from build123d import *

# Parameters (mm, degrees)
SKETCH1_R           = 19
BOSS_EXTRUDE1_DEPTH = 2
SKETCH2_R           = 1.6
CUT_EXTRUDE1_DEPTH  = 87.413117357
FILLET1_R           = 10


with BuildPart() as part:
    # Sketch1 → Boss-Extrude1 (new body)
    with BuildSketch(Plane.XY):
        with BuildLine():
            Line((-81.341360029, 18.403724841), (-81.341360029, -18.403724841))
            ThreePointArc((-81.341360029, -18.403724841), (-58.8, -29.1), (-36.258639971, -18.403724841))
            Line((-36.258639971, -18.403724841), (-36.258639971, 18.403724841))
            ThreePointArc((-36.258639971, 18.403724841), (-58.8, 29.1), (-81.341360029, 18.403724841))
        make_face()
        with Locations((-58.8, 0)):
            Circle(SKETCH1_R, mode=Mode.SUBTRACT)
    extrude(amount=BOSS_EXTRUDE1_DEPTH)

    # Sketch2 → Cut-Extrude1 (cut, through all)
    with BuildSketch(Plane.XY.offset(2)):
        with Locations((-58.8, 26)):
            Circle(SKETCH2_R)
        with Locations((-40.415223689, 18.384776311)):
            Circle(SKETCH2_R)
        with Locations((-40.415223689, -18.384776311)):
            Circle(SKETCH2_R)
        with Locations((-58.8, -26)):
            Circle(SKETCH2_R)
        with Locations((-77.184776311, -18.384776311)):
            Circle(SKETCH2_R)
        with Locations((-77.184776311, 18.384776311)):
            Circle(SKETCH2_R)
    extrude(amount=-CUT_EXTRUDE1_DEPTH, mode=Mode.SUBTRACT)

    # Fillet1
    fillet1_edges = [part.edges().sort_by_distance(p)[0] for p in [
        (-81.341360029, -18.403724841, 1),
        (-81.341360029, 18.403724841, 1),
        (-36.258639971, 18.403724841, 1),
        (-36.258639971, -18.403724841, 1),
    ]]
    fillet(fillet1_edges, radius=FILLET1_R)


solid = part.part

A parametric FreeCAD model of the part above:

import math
import FreeCAD as App
import Part
import Sketcher


def edges_at(feature, points):
    """Names of the edges that pass closest to the given points."""
    edges = feature.Shape.Edges
    near = lambda p: min(range(len(edges)), key=lambda i: edges[i].distToShape(Part.Vertex(*p))[0])
    return sorted({f"Edge{near(p) + 1}" for p in points})

doc = App.newDocument("Part")
params = doc.addObject("Spreadsheet::Sheet", "Params")
for row, (alias, value) in enumerate([
    ("sketch1_diameter", "38 mm"),
    ("sketch1_radius", "29.1 mm"),
    ("pad1_length", "2 mm"),
    ("sketch2_diameter", "3.2 mm"),
    ("fillet_radius", "10 mm"),
], start=1):
    params.set(f"A{row}", alias)
    params.set(f"B{row}", "=" + value)
    params.setAlias(f"B{row}", alias)

body = doc.addObject("PartDesign::Body", "Body")

sketch1 = doc.addObject("Sketcher::SketchObject", "Sketch")
body.addObject(sketch1)
sketch1.AttachmentSupport = (doc.XY_Plane, [""])
sketch1.MapMode = "FlatFace"
sketch1.addGeometry(Part.LineSegment(App.Vector(-81.34136, 18.403725, 0), App.Vector(-81.34136, -18.403725, 0)), False)
sketch1.addGeometry(Part.ArcOfCircle(Part.Circle(App.Vector(-58.8, 0, 0), App.Vector(0, 0, 1), 29.1), math.radians(-140.770338), math.radians(-39.229662)), False)
sketch1.addGeometry(Part.LineSegment(App.Vector(-36.25864, -18.403725, 0), App.Vector(-36.25864, 18.403725, 0)), False)
sketch1.addGeometry(Part.ArcOfCircle(Part.Circle(App.Vector(-58.8, 0, 0), App.Vector(0, 0, 1), 29.1), math.radians(39.229662), math.radians(140.770338)), False)
sketch1.addGeometry(Part.Circle(App.Vector(-58.8, 0, 0), App.Vector(0, 0, 1), 19), False)
sketch1.addConstraint(Sketcher.Constraint("Coincident", 0, 2, 1, 1))
sketch1.addConstraint(Sketcher.Constraint("Coincident", 1, 2, 2, 1))
sketch1.addConstraint(Sketcher.Constraint("Coincident", 2, 2, 3, 1))
sketch1.addConstraint(Sketcher.Constraint("Coincident", 3, 2, 0, 1))
sketch1.addConstraint(Sketcher.Constraint("Vertical", 0))
sketch1.addConstraint(Sketcher.Constraint("Vertical", 2))
sketch1.addConstraint(Sketcher.Constraint("Coincident", 3, 3, 1, 3))
sketch1.addConstraint(Sketcher.Constraint("Coincident", 4, 3, 1, 3))
sketch1.addConstraint(Sketcher.Constraint("Equal", 1, 3))
sketch1.addConstraint(Sketcher.Constraint("PointOnObject", 1, 3, -1))
sketch1.addConstraint(Sketcher.Constraint("Horizontal", 0, 2, 1, 2))
sketch1.addConstraint(Sketcher.Constraint("Diameter", 4, 38.0))
sketch1.addConstraint(Sketcher.Constraint("Radius", 1, 29.1))
sketch1.addConstraint(Sketcher.Constraint("DistanceX", 1, 3, -1, 1, 58.8))
sketch1.addConstraint(Sketcher.Constraint("DistanceY", 0, 2, 0, 1, 36.80745))
sketch1.setExpression("Constraints[11]", "Params.sketch1_diameter")
sketch1.setExpression("Constraints[12]", "Params.sketch1_radius")
pad1 = doc.addObject("PartDesign::Pad", "Pad")
body.addObject(pad1)
pad1.Profile = sketch1
pad1.setExpression("Length", "Params.pad1_length")

sketch2 = doc.addObject("Sketcher::SketchObject", "Sketch001")
body.addObject(sketch2)
sketch2.AttachmentSupport = (doc.XY_Plane, [""])
sketch2.MapMode = "FlatFace"
sketch2.AttachmentOffset = App.Placement(App.Vector(0, 0, 2), App.Rotation())
sketch2.addGeometry(Part.Circle(App.Vector(-58.8, 26, 0), App.Vector(0, 0, 1), 1.6), False)
sketch2.addGeometry(Part.Circle(App.Vector(-40.415224, 18.384776, 0), App.Vector(0, 0, 1), 1.6), False)
sketch2.addGeometry(Part.Circle(App.Vector(-40.415224, -18.384776, 0), App.Vector(0, 0, 1), 1.6), False)
sketch2.addGeometry(Part.Circle(App.Vector(-58.8, -26, 0), App.Vector(0, 0, 1), 1.6), False)
sketch2.addGeometry(Part.Circle(App.Vector(-77.184776, -18.384776, 0), App.Vector(0, 0, 1), 1.6), False)
sketch2.addGeometry(Part.Circle(App.Vector(-77.184776, 18.384776, 0), App.Vector(0, 0, 1), 1.6), False)
sketch2.addConstraint(Sketcher.Constraint("Equal", 0, 1))
sketch2.addConstraint(Sketcher.Constraint("Equal", 1, 2))
sketch2.addConstraint(Sketcher.Constraint("Equal", 2, 3))
sketch2.addConstraint(Sketcher.Constraint("Equal", 3, 4))
sketch2.addConstraint(Sketcher.Constraint("Equal", 4, 5))
sketch2.addConstraint(Sketcher.Constraint("Symmetric", 1, 3, 2, 3, -1))
sketch2.addConstraint(Sketcher.Constraint("Symmetric", 0, 3, 3, 3, -1))
sketch2.addConstraint(Sketcher.Constraint("Symmetric", 4, 3, 5, 3, -1))
sketch2.addConstraint(Sketcher.Constraint("Horizontal", 2, 3, 4, 3))
sketch2.addConstraint(Sketcher.Constraint("Diameter", 0, 3.2))
sketch2.addConstraint(Sketcher.Constraint("DistanceY", -1, 1, 0, 3, 26.0))
sketch2.addConstraint(Sketcher.Constraint("DistanceX", 0, 3, -1, 1, 58.8))
sketch2.addConstraint(Sketcher.Constraint("DistanceX", 1, 3, -1, 1, 40.415224))
sketch2.addConstraint(Sketcher.Constraint("DistanceY", -1, 1, 1, 3, 18.384776))
sketch2.addConstraint(Sketcher.Constraint("DistanceX", 4, 3, -1, 1, 77.184776))
sketch2.setExpression("Constraints[9]", "Params.sketch2_diameter")
pocket1 = doc.addObject("PartDesign::Pocket", "Pocket")
body.addObject(pocket1)
pocket1.Profile = sketch2
pocket1.Type = "ThroughAll"
doc.recompute()

fillet = doc.addObject("PartDesign::Fillet", "Fillet")
body.addObject(fillet)
fillet.Base = (pocket1, edges_at(pocket1, [
    (-81.341, -18.404, 1),
    (-81.341, 18.404, 1),
    (-36.259, 18.404, 1),
    (-36.259, -18.404, 1),
]))
fillet.setExpression("Radius", "Params.fillet_radius")

doc.recompute()
